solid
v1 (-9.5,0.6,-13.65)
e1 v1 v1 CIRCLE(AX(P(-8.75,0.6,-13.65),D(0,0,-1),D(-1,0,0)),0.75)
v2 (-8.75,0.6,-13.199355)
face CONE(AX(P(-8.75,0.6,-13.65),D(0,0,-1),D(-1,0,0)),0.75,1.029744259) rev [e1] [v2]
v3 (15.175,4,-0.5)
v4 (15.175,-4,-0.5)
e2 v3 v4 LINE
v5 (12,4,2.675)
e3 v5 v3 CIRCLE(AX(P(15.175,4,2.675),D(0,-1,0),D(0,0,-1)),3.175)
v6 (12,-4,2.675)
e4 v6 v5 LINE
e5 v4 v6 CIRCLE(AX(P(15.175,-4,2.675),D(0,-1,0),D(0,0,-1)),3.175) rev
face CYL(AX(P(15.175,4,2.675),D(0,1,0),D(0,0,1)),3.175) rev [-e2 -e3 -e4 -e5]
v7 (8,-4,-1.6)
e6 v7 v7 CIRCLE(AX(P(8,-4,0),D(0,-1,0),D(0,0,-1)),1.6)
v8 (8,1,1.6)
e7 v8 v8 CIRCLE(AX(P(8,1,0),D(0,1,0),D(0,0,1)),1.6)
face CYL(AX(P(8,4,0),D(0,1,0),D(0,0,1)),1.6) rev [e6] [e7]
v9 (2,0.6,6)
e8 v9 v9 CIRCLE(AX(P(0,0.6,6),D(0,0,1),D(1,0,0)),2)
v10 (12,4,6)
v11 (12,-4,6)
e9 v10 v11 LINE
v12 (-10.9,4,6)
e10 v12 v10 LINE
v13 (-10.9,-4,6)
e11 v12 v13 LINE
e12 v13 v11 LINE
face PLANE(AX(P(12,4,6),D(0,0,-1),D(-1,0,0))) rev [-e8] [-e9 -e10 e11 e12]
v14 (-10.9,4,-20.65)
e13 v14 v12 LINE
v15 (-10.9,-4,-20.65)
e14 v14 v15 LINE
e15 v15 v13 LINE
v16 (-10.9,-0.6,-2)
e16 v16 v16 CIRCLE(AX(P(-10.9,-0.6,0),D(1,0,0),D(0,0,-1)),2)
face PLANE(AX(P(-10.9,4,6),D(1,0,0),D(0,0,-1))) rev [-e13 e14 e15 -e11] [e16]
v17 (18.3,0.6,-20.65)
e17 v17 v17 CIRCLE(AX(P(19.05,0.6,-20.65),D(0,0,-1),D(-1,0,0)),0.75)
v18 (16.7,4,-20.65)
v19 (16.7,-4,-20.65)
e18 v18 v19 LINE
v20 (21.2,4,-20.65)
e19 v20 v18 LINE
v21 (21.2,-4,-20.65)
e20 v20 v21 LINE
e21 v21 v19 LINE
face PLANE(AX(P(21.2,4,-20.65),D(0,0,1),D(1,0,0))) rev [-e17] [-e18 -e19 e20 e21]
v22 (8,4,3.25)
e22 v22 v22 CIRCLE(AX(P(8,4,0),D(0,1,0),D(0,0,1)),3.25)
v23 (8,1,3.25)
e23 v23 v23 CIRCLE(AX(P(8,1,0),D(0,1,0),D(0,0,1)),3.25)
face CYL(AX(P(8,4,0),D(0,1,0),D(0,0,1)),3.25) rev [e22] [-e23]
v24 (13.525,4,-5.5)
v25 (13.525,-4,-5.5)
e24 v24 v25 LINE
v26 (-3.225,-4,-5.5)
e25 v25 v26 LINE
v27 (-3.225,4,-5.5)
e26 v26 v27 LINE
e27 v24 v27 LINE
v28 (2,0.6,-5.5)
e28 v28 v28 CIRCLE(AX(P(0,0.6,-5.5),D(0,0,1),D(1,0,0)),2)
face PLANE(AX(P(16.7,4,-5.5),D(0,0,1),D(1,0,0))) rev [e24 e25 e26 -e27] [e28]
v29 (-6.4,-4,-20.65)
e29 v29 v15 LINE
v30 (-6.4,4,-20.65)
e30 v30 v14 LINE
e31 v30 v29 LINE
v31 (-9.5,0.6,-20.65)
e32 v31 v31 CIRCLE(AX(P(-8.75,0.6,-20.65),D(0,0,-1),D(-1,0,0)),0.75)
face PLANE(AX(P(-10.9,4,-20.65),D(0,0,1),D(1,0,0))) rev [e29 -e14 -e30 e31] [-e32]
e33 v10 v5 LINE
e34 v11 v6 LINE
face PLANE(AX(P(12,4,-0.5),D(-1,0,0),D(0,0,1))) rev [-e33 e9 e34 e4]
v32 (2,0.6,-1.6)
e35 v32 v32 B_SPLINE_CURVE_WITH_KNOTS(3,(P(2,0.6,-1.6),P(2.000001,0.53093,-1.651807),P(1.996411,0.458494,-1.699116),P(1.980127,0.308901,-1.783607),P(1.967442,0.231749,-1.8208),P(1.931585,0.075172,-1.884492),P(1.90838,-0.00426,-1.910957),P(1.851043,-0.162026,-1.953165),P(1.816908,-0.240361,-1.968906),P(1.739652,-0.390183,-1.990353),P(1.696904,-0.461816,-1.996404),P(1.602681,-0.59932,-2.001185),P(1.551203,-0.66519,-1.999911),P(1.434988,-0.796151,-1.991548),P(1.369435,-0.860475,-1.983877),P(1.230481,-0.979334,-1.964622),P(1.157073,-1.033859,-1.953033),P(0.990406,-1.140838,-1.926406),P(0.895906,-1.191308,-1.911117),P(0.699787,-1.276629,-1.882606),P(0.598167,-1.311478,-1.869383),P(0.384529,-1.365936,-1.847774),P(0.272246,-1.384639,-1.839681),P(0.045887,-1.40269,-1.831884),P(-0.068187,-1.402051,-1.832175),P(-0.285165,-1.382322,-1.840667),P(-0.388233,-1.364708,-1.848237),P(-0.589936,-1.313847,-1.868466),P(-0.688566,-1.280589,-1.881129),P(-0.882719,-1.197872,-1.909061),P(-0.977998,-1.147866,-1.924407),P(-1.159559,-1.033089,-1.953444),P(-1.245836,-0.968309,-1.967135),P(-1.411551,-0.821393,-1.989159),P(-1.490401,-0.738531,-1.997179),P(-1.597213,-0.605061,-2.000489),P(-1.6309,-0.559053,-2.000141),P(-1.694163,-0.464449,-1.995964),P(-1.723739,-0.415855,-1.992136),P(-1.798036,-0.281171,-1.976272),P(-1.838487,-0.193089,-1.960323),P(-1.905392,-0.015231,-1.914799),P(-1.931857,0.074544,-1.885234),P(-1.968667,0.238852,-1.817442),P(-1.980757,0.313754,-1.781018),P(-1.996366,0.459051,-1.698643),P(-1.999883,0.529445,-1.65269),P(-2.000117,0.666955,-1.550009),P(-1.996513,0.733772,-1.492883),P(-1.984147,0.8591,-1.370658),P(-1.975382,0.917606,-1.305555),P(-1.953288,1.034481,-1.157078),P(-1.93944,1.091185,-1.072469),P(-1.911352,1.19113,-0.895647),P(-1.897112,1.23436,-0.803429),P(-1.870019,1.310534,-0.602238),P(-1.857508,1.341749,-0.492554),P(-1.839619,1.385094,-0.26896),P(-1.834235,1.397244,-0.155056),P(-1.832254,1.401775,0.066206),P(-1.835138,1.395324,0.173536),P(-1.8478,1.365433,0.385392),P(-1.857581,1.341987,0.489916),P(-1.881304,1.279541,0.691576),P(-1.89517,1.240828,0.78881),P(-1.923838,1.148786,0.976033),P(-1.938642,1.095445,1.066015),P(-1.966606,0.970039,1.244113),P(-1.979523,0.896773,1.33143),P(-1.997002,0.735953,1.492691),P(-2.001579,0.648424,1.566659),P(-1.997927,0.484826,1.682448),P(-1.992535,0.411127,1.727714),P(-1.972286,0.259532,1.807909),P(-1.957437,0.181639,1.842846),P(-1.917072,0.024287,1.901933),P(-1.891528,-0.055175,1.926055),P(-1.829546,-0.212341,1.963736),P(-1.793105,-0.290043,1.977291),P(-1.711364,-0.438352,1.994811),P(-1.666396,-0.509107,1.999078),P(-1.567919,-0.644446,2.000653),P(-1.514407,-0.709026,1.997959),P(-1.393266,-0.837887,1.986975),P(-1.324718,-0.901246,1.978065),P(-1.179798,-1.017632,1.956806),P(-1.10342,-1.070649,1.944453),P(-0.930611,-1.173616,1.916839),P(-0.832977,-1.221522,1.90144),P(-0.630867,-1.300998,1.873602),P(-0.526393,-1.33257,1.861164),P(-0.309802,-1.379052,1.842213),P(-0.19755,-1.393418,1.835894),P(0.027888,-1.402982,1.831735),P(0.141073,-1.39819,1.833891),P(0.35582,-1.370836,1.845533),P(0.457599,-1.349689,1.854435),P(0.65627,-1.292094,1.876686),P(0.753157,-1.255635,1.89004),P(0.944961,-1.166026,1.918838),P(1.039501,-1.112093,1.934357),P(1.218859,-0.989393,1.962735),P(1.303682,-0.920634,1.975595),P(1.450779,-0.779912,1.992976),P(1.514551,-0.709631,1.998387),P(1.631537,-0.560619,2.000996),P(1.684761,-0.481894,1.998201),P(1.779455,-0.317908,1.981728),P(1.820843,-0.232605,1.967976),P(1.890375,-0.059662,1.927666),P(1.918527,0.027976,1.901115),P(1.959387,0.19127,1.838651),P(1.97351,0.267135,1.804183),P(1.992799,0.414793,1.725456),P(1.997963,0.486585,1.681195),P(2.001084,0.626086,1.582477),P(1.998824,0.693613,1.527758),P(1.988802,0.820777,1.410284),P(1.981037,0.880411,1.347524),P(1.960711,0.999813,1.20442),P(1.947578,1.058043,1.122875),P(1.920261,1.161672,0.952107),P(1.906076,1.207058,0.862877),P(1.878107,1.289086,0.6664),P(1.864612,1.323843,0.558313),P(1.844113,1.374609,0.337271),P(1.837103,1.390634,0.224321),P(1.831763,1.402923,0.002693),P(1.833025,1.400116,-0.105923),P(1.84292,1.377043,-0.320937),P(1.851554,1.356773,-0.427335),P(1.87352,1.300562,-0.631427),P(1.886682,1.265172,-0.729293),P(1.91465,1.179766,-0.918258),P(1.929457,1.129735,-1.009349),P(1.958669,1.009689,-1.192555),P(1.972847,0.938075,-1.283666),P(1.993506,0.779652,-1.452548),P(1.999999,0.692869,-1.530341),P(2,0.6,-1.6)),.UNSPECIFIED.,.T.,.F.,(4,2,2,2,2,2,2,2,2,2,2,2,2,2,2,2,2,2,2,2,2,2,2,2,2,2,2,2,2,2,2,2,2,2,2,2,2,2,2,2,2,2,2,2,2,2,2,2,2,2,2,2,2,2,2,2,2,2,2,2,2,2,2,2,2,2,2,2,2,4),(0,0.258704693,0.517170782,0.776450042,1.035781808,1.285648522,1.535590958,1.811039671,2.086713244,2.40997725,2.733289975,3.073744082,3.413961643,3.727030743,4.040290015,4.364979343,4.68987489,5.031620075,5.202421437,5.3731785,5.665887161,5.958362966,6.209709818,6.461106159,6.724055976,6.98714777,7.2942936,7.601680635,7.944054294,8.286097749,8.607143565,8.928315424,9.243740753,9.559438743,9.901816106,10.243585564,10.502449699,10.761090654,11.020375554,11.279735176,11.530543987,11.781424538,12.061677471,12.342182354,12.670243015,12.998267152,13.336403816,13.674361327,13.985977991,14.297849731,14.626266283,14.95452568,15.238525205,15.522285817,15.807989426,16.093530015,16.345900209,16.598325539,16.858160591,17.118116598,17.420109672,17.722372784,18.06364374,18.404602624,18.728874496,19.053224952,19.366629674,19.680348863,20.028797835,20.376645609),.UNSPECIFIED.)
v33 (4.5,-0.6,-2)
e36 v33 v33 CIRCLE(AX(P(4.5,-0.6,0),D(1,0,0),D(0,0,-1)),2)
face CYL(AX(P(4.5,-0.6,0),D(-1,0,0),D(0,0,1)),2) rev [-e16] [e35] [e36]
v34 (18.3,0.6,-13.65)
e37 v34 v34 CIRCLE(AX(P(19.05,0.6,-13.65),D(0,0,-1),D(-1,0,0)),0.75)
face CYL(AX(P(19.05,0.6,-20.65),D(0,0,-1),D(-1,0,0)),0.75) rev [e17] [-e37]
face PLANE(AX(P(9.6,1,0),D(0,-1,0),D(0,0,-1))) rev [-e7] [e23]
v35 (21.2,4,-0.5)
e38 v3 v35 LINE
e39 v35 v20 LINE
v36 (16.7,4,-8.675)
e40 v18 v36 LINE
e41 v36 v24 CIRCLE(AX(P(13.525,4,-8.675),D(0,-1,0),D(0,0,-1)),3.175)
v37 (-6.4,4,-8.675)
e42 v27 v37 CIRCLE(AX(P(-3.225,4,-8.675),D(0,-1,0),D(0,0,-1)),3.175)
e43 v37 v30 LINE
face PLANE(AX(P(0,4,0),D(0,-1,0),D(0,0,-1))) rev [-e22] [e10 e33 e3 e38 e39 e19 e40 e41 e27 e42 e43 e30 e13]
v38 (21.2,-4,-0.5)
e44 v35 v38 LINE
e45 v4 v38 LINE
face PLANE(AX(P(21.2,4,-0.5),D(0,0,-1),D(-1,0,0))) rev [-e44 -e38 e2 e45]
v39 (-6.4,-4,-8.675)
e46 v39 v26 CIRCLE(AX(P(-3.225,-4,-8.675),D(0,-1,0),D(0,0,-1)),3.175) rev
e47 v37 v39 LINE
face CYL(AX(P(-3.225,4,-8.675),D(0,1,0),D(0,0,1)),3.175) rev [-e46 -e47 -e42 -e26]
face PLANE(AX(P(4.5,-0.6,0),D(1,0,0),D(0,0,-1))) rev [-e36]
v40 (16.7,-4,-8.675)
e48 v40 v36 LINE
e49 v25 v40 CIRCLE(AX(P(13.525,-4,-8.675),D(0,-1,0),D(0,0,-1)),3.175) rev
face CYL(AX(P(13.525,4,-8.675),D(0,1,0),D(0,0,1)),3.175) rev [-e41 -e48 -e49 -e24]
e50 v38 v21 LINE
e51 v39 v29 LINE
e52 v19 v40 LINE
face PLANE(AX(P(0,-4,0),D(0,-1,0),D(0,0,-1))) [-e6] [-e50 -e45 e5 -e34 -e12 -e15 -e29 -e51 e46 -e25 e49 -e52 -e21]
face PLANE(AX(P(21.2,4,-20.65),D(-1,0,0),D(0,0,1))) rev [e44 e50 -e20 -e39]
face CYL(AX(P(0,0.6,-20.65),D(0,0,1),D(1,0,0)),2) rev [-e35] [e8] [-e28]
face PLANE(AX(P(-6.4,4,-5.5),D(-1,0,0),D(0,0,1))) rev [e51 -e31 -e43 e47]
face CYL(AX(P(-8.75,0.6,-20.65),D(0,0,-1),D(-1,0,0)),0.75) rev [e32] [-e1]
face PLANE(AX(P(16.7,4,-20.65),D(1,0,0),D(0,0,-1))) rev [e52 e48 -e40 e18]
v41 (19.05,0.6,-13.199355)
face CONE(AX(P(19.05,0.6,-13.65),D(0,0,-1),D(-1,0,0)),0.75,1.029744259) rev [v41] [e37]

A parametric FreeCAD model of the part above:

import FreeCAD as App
import Part
import Sketcher

V = App.Vector


def edges_at(feature, points):
    """Names of the edges that pass closest to the given points."""
    edges = feature.Shape.Edges
    near = lambda p: min(range(len(edges)), key=lambda i: edges[i].distToShape(Part.Vertex(*p))[0])
    return sorted({f"Edge{near(p) + 1}" for p in points})

doc = App.newDocument("Part")
body = doc.addObject("PartDesign::Body", "Body")

# Sketch on XZ plane
sketch1 = body.newObject("Sketcher::SketchObject", "Sketch")
sketch1.AttachmentSupport = (doc.getObject("XZ_Plane"), [""])
sketch1.MapMode = "FlatFace"
sketch1.addGeometry([
    Part.LineSegment(V(12, 6, 0), V(12, -0.5, 0)),  # 0
    Part.LineSegment(V(12, -0.5, 0), V(21.2, -0.5, 0)),  # 1
    Part.LineSegment(V(21.2, -0.5, 0), V(21.2, -20.6, 0)),  # 2
    Part.LineSegment(V(21.2, -20.6, 0), V(16.7, -20.6, 0)),  # 3
    Part.LineSegment(V(16.7, -20.6, 0), V(16.7, -5.5, 0)),  # 4
    Part.LineSegment(V(16.7, -5.5, 0), V(-6.4, -5.5, 0)),  # 5
    Part.LineSegment(V(-6.4, -5.5, 0), V(-6.4, -20.6, 0)),  # 6
    Part.LineSegment(V(-6.4, -20.6, 0), V(-10.9, -20.6, 0)),  # 7
    Part.LineSegment(V(-10.9, -20.6, 0), V(-10.9, 6, 0)),  # 8
    Part.LineSegment(V(-10.9, 6, 0), V(12, 6, 0)),  # 9
], False)
sketch1.addConstraint([
    Sketcher.Constraint("Coincident", 0, 2, 1, 1),
    Sketcher.Constraint("Coincident", 1, 2, 2, 1),
    Sketcher.Constraint("Coincident", 2, 2, 3, 1),
    Sketcher.Constraint("Coincident", 3, 2, 4, 1),
    Sketcher.Constraint("Coincident", 4, 2, 5, 1),
    Sketcher.Constraint("Coincident", 5, 2, 6, 1),
    Sketcher.Constraint("Coincident", 6, 2, 7, 1),
    Sketcher.Constraint("Coincident", 7, 2, 8, 1),
    Sketcher.Constraint("Coincident", 8, 2, 9, 1),
    Sketcher.Constraint("Coincident", 9, 2, 0, 1),
    Sketcher.Constraint("Vertical", 0),
    Sketcher.Constraint("Horizontal", 1),
    Sketcher.Constraint("Vertical", 2),
    Sketcher.Constraint("Horizontal", 3),
    Sketcher.Constraint("Vertical", 4),
    Sketcher.Constraint("Horizontal", 5),
    Sketcher.Constraint("Vertical", 6),
    Sketcher.Constraint("Horizontal", 7),
    Sketcher.Constraint("Vertical", 8),
    Sketcher.Constraint("Horizontal", 9),
    Sketcher.Constraint("Horizontal", 3, 2, 6, 2),
    Sketcher.Constraint("Equal", 3, 7),
    Sketcher.Constraint("DistanceX", 1, 1, 1, 2, 9.2),
    Sketcher.Constraint("DistanceX", 3, 2, 3, 1, 4.5),
    Sketcher.Constraint("DistanceX", 5, 2, 5, 1, 23.1),
    Sketcher.Constraint("DistanceY", 0, 2, 0, 1, 6.5),
    Sketcher.Constraint("DistanceX", -1, 1, 0, 2, 12.0),
    Sketcher.Constraint("DistanceY", -1, 1, 8, 2, 6.0),
    Sketcher.Constraint("DistanceY", 4, 2, 1, 2, 5.0),
    Sketcher.Constraint("DistanceY", 2, 2, 2, 1, 20.15),
])
pad1 = body.newObject("PartDesign::Pad", "Pad")
pad1.Profile = sketch1
pad1.Length = 8
pad1.Midplane = True
doc.recompute()

fillet = body.newObject("PartDesign::Fillet", "Fillet")
fillet.Base = (pad1, edges_at(pad1, [(12, 0, -0.5), (-6.4, 0, -5.5), (16.7, 0, -5.5)]))
fillet.Radius = 3.175

# Sketch on XY plane
sketch2 = body.newObject("Sketcher::SketchObject", "Sketch001")
sketch2.AttachmentSupport = (doc.getObject("XY_Plane"), [""])
sketch2.MapMode = "FlatFace"
sketch2.addGeometry(Part.Circle(V(0, 0.6, 0), V(0, 0, 1), 2), False)
sketch2.addConstraint([
    Sketcher.Constraint("PointOnObject", 0, 3, -2),
    Sketcher.Constraint("Diameter", 0, 4.0),
    Sketcher.Constraint("DistanceY", -1, 1, 0, 3, 0.6),
])
pocket1 = body.newObject("PartDesign::Pocket", "Pocket")
pocket1.Profile = sketch2
pocket1.Type = "ThroughAll"
pocket1.Midplane = True

# Sketch on YZ plane
sketch3 = body.newObject("Sketcher::SketchObject", "Sketch002")
sketch3.AttachmentSupport = (doc.getObject("YZ_Plane"), [""])
sketch3.MapMode = "FlatFace"
sketch3.addGeometry(Part.Circle(V(-0.6, 0, 0), V(0, 0, 1), 2), False)
sketch3.addConstraint([
    Sketcher.Constraint("PointOnObject", 0, 3, -1),
    Sketcher.Constraint("Diameter", 0, 4.0),
    Sketcher.Constraint("DistanceX", 0, 3, -1, 1, 0.6),
])
pocket2 = body.newObject("PartDesign::Pocket", "Pocket001")
pocket2.Profile = sketch3
pocket2.Type = "TwoLengths"
pocket2.Length = 4.5
pocket2.Length2 = 30.864067
pocket2.Reversed = True

# Sketch on XY plane
sketch4 = body.newObject("Sketcher::SketchObject", "Sketch003")
sketch4.AttachmentSupport = (doc.getObject("XY_Plane"), [""])
sketch4.MapMode = "FlatFace"
sketch4.AttachmentOffset = App.Placement(V(0, 0, -20.65), App.Rotation())
sketch4.addGeometry([
    Part.Circle(V(19.1, 0.6, 0), V(0, 0, 1), 0.8),
    Part.Circle(V(-8.8, 0.6, 0), V(0, 0, 1), 0.8),
], False)
sketch4.addConstraint([
    Sketcher.Constraint("Equal", 0, 1),
    Sketcher.Constraint("Horizontal", 0, 3, 1, 3),
    Sketcher.Constraint("Diameter", 0, 1.5),
    Sketcher.Constraint("DistanceY", -1, 1, 0, 3, 0.6),
    Sketcher.Constraint("DistanceX", 1, 3, 0, 3, 27.8),
    Sketcher.Constraint("DistanceX", -1, 1, 0, 3, 19.05),
])
doc.recompute()
hole = body.newObject("PartDesign::Hole", "Hole")
hole.Profile = sketch4
hole.ThreadType = "None"
hole.Diameter = 1.5
hole.DepthType = "Dimension"
hole.Depth = 7
hole.DrillPoint = "Angled"
hole.DrillPointAngle = 118
hole.Reversed = True

# Sketch on XZ plane
sketch5 = body.newObject("Sketcher::SketchObject", "Sketch004")
sketch5.AttachmentSupport = (doc.getObject("XZ_Plane"), [""])
sketch5.MapMode = "FlatFace"
sketch5.AttachmentOffset = App.Placement(V(0, 0, -4), App.Rotation())
sketch5.addGeometry(Part.Circle(V(8, 0, 0), V(0, 0, 1), 1.6), False)
sketch5.addConstraint([
    Sketcher.Constraint("PointOnObject", 0, 3, -1),
    Sketcher.Constraint("Diameter", 0, 3.2),
    Sketcher.Constraint("DistanceX", -1, 1, 0, 3, 8.0),
])
doc.recompute()
hole2 = body.newObject("PartDesign::Hole", "Hole001")
hole2.Profile = sketch5
hole2.ThreadType = "None"
hole2.Diameter = 3.2
hole2.DepthType = "ThroughAll"
hole2.HoleCutType = "Counterbore"
hole2.HoleCutDiameter = 6.5
hole2.HoleCutDepth = 3
hole2.Reversed = True

doc.recompute()
